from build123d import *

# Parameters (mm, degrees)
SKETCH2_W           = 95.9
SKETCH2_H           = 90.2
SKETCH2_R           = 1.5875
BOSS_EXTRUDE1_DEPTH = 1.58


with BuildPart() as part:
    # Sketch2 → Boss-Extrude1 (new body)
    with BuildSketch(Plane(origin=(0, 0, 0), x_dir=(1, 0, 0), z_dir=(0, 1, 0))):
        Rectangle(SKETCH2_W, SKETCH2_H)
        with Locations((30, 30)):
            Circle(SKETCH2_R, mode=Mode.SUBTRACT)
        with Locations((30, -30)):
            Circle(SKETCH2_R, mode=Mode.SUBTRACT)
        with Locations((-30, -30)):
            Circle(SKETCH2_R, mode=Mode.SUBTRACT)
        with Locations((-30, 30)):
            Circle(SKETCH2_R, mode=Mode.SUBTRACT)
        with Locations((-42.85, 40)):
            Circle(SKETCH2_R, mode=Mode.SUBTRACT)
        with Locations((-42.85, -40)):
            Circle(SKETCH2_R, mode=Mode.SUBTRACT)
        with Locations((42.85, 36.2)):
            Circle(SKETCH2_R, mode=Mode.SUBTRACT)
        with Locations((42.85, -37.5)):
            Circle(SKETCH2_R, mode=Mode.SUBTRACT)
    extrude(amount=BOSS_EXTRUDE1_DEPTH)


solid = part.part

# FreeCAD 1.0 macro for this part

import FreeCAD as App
import Part
import Sketcher
from FreeCAD import Vector


def add_polygon(sketch, points):
    """Adds a closed chain of lines whose ends are joined by coincident constraints."""
    first, n = sketch.GeometryCount, len(points)
    for a, b in zip(points, points[1:] + points[:1]):
        sketch.addGeometry(Part.LineSegment(App.Vector(*a, 0), App.Vector(*b, 0)), False)
    for i in range(n):
        sketch.addConstraint(Sketcher.Constraint("Coincident", first + i, 2, first + (i + 1) % n, 1))

doc = App.newDocument("Part")
params = doc.addObject("Spreadsheet::Sheet", "Params")
for row, (alias, value) in enumerate([
    ("sketch1_width", "95.9 mm"),
    ("sketch1_height", "90.2 mm"),
    ("pad1_length", "1.58 mm"),
], start=1):
    params.set(f"A{row}", alias)
    params.set(f"B{row}", "=" + value)
    params.setAlias(f"B{row}", alias)

body = doc.addObject("PartDesign::Body", "Body")

# Sketch on XZ plane
sketch1 = doc.addObject("Sketcher::SketchObject", "Sketch")
body.addObject(sketch1)
sketch1.AttachmentSupport = (doc.XZ_Plane, [""])
sketch1.MapMode = "FlatFace"
add_polygon(sketch1, [(-47.95, -45.1), (-47.95, 45.1), (47.95, 45.1), (47.95, -45.1)])  # lines 0-3
sketch1.addGeometry(Part.Circle(Vector(-42.85, 40, 0), Vector(0, 0, 1), 1.5875), False)  # 4
sketch1.addGeometry(Part.Circle(Vector(-30, 30, 0), Vector(0, 0, 1), 1.5875), False)  # 5
sketch1.addGeometry(Part.Circle(Vector(42.85, 37.5, 0), Vector(0, 0, 1), 1.5875), False)  # 6
sketch1.addGeometry(Part.Circle(Vector(30, 30, 0), Vector(0, 0, 1), 1.5875), False)  # 7
sketch1.addGeometry(Part.Circle(Vector(-30, -30, 0), Vector(0, 0, 1), 1.5875), False)  # 8
sketch1.addGeometry(Part.Circle(Vector(-42.85, -40, 0), Vector(0, 0, 1), 1.5875), False)  # 9
sketch1.addGeometry(Part.Circle(Vector(30, -30, 0), Vector(0, 0, 1), 1.5875), False)  # 10
sketch1.addGeometry(Part.Circle(Vector(42.85, -36.2, 0), Vector(0, 0, 1), 1.5875), False)  # 11
sketch1.addConstraint([
    Sketcher.Constraint("Vertical", 0),
    Sketcher.Constraint("Horizontal", 1),
    Sketcher.Constraint("Vertical", 2),
    Sketcher.Constraint("Horizontal", 3),
    Sketcher.Constraint("Equal", 4, 5),
    Sketcher.Constraint("Equal", 5, 6),
    Sketcher.Constraint("Equal", 6, 7),
    Sketcher.Constraint("Equal", 7, 8),
    Sketcher.Constraint("Equal", 8, 9),
    Sketcher.Constraint("Equal", 9, 10),
    Sketcher.Constraint("Equal", 10, 11),
    Sketcher.Constraint("Symmetric", 7, 3, 8, 3, -1, 1),
    Sketcher.Constraint("Symmetric", 5, 3, 10, 3, -1, 1),
    Sketcher.Constraint("Symmetric", 0, 2, 2, 2, -1, 1),
    Sketcher.Constraint("Symmetric", 5, 3, 7, 3, -2),
    Sketcher.Constraint("Symmetric", 4, 3, 9, 3, -1),
    Sketcher.Constraint("Vertical", 6, 3, 11, 3),
    Sketcher.Constraint("Diameter", 4, 3.175),
    Sketcher.Constraint("DistanceX", 1, 1, 1, 2, 95.9),
    Sketcher.Constraint("DistanceY", 0, 1, 0, 2, 90.2),
    Sketcher.Constraint("DistanceY", -1, 1, 4, 3, 40.0),
    Sketcher.Constraint("DistanceX", 5, 3, -1, 1, 30.0),
    Sketcher.Constraint("DistanceY", -1, 1, 5, 3, 30.0),
    Sketcher.Constraint("DistanceY", -1, 1, 6, 3, 37.5),
    Sketcher.Constraint("DistanceY", 11, 3, -1, 1, 36.2),
    Sketcher.Constraint("DistanceX", 4, 3, 6, 3, 85.7),
    Sketcher.Constraint("DistanceX", 0, 2, 4, 3, 5.1),
])
sketch1.setExpression("Constraints[22]", "Params.sketch1_width")
sketch1.setExpression("Constraints[23]", "Params.sketch1_height")
pad1 = doc.addObject("PartDesign::Pad", "Pad")
body.addObject(pad1)
pad1.Profile = sketch1
pad1.setExpression("Length", "Params.pad1_length")
pad1.Reversed = True

doc.recompute()
